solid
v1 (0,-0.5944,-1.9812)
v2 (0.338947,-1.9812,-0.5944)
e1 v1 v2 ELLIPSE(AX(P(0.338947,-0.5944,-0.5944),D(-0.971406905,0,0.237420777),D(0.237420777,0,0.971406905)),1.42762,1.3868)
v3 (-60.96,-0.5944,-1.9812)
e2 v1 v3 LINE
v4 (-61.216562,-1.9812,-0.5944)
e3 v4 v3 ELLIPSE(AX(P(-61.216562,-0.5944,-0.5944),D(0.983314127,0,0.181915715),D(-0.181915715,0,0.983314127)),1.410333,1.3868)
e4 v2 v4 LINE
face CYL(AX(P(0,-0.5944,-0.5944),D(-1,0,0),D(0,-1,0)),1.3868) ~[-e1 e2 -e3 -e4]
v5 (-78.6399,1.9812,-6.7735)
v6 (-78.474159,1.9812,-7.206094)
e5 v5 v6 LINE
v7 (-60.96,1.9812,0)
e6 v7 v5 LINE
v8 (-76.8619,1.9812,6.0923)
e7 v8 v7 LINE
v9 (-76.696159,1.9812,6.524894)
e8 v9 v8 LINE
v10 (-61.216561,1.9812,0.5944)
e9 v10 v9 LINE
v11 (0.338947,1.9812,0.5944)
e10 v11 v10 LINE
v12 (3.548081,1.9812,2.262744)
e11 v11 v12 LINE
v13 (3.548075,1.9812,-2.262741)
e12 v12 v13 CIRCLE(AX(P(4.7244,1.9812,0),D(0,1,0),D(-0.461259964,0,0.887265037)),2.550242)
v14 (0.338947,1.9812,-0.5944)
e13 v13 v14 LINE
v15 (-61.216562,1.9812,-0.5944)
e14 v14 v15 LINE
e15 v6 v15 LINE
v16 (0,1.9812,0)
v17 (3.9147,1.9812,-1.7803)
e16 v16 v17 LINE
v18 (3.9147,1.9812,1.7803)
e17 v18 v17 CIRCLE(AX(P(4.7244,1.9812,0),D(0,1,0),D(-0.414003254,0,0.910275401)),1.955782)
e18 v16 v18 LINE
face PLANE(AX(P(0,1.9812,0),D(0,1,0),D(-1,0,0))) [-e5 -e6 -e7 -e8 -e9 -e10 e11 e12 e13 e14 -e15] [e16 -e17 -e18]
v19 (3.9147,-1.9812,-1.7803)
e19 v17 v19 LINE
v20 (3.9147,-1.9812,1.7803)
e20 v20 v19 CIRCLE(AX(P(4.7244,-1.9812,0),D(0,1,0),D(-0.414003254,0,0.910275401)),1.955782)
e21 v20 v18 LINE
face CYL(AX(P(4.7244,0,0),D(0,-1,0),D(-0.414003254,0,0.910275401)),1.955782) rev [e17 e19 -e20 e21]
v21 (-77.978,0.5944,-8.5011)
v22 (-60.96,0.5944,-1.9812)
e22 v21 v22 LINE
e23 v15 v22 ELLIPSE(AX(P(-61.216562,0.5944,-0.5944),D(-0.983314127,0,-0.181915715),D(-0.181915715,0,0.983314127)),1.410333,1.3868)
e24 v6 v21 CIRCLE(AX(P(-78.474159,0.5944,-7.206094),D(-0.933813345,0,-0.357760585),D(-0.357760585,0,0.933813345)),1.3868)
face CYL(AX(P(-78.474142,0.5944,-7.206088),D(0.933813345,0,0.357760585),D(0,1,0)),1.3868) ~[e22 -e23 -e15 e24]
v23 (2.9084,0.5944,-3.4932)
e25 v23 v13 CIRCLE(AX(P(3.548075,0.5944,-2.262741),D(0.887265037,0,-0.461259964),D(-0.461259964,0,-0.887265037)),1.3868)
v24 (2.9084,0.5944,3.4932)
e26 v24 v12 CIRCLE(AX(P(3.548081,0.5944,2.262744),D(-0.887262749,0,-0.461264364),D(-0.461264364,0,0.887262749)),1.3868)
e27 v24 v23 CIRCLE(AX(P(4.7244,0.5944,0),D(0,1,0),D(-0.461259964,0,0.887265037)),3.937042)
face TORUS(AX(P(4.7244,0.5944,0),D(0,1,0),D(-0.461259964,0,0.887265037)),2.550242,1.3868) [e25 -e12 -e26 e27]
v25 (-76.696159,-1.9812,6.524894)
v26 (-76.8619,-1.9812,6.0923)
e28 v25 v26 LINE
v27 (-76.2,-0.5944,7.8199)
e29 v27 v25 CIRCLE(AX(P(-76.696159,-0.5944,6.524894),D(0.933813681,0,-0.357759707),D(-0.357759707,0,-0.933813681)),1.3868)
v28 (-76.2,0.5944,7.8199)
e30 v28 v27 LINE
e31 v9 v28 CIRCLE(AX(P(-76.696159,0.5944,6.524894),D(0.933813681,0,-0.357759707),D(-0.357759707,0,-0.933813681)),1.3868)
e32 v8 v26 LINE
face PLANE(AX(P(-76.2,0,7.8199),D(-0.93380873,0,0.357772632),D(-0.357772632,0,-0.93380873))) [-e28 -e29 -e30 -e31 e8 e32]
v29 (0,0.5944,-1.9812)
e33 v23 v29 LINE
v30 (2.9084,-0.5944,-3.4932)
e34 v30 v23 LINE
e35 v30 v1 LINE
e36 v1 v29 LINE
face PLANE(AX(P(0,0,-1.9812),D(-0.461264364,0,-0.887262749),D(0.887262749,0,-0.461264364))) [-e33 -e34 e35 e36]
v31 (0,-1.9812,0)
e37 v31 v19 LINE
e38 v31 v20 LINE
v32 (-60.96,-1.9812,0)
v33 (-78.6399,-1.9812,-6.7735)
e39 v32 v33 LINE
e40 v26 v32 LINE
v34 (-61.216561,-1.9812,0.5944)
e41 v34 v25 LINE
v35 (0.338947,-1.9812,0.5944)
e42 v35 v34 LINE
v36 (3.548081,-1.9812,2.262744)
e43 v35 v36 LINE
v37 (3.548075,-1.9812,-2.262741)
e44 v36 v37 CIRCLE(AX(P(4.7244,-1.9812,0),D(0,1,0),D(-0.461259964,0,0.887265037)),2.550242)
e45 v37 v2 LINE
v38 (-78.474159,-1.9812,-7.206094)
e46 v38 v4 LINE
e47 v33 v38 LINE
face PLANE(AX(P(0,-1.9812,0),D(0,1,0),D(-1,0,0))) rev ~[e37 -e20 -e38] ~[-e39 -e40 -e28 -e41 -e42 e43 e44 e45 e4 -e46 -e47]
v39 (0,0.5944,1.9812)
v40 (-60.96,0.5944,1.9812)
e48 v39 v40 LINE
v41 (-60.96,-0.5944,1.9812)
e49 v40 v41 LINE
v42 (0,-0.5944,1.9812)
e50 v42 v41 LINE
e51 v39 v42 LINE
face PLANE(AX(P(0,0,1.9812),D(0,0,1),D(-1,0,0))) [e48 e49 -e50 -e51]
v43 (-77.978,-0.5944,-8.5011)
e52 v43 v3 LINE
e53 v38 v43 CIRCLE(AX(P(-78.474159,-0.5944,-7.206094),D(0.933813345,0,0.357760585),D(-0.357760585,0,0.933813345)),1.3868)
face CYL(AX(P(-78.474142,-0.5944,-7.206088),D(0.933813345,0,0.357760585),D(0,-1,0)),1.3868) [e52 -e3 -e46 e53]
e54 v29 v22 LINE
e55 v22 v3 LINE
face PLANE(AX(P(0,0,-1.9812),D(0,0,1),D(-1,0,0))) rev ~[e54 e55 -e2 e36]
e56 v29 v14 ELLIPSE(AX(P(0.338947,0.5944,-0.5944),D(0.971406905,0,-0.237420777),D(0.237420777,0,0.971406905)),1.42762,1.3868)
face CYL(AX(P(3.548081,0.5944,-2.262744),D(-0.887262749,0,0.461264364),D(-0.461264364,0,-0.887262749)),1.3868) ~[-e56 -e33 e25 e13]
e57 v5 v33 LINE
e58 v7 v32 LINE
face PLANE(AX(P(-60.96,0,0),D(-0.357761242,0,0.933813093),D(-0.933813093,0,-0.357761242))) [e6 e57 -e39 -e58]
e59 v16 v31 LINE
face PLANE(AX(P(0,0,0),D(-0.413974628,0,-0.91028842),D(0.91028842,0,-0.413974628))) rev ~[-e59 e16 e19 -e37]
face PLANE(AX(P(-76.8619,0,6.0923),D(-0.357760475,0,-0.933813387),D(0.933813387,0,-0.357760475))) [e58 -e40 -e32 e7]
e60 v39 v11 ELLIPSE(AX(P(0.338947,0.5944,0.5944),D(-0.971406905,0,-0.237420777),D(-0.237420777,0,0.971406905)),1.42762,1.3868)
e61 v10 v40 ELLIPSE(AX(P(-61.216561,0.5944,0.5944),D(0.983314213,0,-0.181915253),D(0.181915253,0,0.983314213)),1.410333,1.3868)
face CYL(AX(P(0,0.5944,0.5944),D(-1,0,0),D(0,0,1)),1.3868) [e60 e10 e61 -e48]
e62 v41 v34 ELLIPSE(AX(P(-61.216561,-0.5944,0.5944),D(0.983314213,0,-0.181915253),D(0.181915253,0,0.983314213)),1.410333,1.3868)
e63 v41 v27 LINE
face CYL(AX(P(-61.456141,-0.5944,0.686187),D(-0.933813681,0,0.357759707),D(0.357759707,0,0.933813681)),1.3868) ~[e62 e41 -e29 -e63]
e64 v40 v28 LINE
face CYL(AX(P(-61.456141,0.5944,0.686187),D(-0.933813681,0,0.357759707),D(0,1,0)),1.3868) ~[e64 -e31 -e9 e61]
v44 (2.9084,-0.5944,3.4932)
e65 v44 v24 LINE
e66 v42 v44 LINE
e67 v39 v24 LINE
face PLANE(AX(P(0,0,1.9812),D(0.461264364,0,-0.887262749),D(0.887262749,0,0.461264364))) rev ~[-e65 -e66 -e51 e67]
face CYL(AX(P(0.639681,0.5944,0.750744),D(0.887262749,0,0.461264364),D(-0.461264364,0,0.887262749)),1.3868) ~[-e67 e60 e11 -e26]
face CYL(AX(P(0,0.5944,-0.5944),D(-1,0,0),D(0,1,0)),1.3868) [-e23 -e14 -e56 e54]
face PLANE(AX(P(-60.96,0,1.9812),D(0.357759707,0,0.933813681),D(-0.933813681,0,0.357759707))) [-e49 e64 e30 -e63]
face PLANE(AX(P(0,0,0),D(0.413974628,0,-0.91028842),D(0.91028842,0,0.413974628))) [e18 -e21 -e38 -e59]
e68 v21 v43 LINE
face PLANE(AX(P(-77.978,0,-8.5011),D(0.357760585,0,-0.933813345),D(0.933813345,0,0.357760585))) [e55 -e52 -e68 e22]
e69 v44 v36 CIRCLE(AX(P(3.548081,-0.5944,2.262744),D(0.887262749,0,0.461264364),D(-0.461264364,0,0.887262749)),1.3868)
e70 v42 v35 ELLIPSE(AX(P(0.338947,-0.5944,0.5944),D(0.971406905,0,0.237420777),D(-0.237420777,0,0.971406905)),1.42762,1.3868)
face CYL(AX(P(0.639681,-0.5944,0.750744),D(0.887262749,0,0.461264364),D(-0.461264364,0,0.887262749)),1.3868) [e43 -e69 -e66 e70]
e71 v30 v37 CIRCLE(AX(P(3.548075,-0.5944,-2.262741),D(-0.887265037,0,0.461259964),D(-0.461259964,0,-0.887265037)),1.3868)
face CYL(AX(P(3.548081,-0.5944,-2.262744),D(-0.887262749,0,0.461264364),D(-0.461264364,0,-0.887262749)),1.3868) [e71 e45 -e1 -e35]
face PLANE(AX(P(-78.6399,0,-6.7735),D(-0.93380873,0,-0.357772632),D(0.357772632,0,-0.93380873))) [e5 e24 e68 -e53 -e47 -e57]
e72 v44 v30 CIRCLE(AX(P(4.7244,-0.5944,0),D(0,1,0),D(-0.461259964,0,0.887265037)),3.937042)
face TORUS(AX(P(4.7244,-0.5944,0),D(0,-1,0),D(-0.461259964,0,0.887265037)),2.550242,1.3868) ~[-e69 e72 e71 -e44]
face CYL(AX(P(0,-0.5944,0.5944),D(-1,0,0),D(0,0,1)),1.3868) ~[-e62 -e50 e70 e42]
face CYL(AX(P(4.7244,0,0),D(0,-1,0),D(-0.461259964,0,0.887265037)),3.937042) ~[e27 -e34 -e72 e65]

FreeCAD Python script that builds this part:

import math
import FreeCAD as App
import Part
import Sketcher
from FreeCAD import Vector
Q = App.Units.Quantity


def edges_at(feature, points):
    """Names of the edges that pass closest to the given points."""
    edges = feature.Shape.Edges
    near = lambda p: min(range(len(edges)), key=lambda i: edges[i].distToShape(Part.Vertex(*p))[0])
    return sorted({f"Edge{near(p) + 1}" for p in points})

doc = App.newDocument("Part")
params = doc.addObject("Spreadsheet::Sheet", "Params")
for row, (alias, value) in enumerate([
    ("sketch1_width", "2.4 in"),
    ("sketch1_radius", "0.155 in"),
    ("sketch1_radius2", "0.077 in"),
    ("pad1_length", "0.156 in"),
    ("fillet_radius", "0.0545984 in"),
], start=1):
    params.set(f"A{row}", alias)
    params.set(f"B{row}", "=" + value)
    params.setAlias(f"B{row}", alias)

body = doc.addObject("PartDesign::Body", "Body")

# Sketch on XZ plane
sketch1 = body.newObject("Sketcher::SketchObject", "Sketch")
sketch1.AttachmentSupport = (doc.getObject("XZ_Plane"), [""])
sketch1.MapMode = "FlatFace"
sketch1.addGeometry([
    Part.LineSegment(Vector(0, 2, 0), Vector(2.9, 3.5, 0)),  # 0
    Part.ArcOfCircle(Part.Circle(Vector(4.7, 0, 0), Vector(0, 0, 1), 3.9), math.radians(-117), math.radians(117)),  # 1
    Part.LineSegment(Vector(2.9, -3.5, 0), Vector(0, -2, 0)),  # 2
    Part.LineSegment(Vector(0, -2, 0), Vector(-61, -2, 0)),  # 3
    Part.LineSegment(Vector(-61, -2, 0), Vector(-78, -8.5, 0)),  # 4
    Part.LineSegment(Vector(-78, -8.5, 0), Vector(-78.6, -6.8, 0)),  # 5
    Part.LineSegment(Vector(-78.6, -6.8, 0), Vector(-61, 0, 0)),  # 6
    Part.LineSegment(Vector(-61, 0, 0), Vector(-76.9, 6.1, 0)),  # 7
    Part.LineSegment(Vector(-76.9, 6.1, 0), Vector(-76.2, 7.8, 0)),  # 8
    Part.LineSegment(Vector(-76.2, 7.8, 0), Vector(-61, 2, 0)),  # 9
    Part.LineSegment(Vector(-61, 2, 0), Vector(0, 2, 0)),  # 10
    Part.ArcOfCircle(Part.Circle(Vector(4.7, 0, 0), Vector(0, 0, 1), 2), math.radians(-114), math.radians(114)),  # 11
    Part.LineSegment(Vector(3.9, 1.8, 0), Vector(0, 0, 0)),  # 12
    Part.LineSegment(Vector(0, 0, 0), Vector(3.9, -1.8, 0)),  # 13
], False)
sketch1.addConstraint([
    Sketcher.Constraint("Tangent", 0, 2, 1, 2),
    Sketcher.Constraint("Tangent", 1, 1, 2, 1),
    Sketcher.Constraint("Coincident", 2, 2, 3, 1),
    Sketcher.Constraint("Coincident", 3, 2, 4, 1),
    Sketcher.Constraint("Coincident", 4, 2, 5, 1),
    Sketcher.Constraint("Coincident", 5, 2, 6, 1),
    Sketcher.Constraint("Coincident", 6, 2, 7, 1),
    Sketcher.Constraint("Coincident", 7, 2, 8, 1),
    Sketcher.Constraint("Coincident", 8, 2, 9, 1),
    Sketcher.Constraint("Coincident", 9, 2, 10, 1),
    Sketcher.Constraint("Coincident", 10, 2, 0, 1),
    Sketcher.Constraint("Tangent", 11, 2, 12, 1),
    Sketcher.Constraint("Coincident", 12, 2, 13, 1),
    Sketcher.Constraint("Tangent", 13, 2, 11, 1),
    Sketcher.Constraint("Horizontal", 3),
    Sketcher.Constraint("Horizontal", 10),
    Sketcher.Constraint("Coincident", 12, 2, -1, 1),
    Sketcher.Constraint("Coincident", 11, 3, 1, 3),
    Sketcher.Constraint("Symmetric", 2, 2, 10, 2, -1, 1),
    Sketcher.Constraint("Symmetric", 0, 2, 1, 1, -1),
    Sketcher.Constraint("PointOnObject", 6, 2, -1),
    Sketcher.Constraint("Perpendicular", 4, 5),
    Sketcher.Constraint("Perpendicular", 5, 6),
    Sketcher.Constraint("Perpendicular", 7, 8),
    Sketcher.Constraint("Perpendicular", 8, 9),
    Sketcher.Constraint("Vertical", 3, 2, 6, 2),
    Sketcher.Constraint("Vertical", 6, 2, 9, 2),
    Sketcher.Constraint("Equal", 5, 8),
    Sketcher.Constraint("DistanceX", 3, 2, 3, 1, Q("2.4 in")),
    Sketcher.Constraint("DistanceX", 8, 2, -1, 1, Q("3 in")),
    Sketcher.Constraint("Radius", 1, Q("0.155 in")),
    Sketcher.Constraint("Radius", 11, Q("0.077 in")),
    Sketcher.Constraint("DistanceX", 5, 2, 7, 2, Q("0.07 in")),
    Sketcher.Constraint("DistanceX", -1, 1, 1, 3, Q("0.186 in")),
    Sketcher.Constraint("DistanceY", 2, 2, -1, 1, Q("0.078 in")),
    Sketcher.Constraint("Distance", 4, Q("0.7175 in")),
])
sketch1.setExpression("Constraints[28]", "Params.sketch1_width")
sketch1.setExpression("Constraints[30]", "Params.sketch1_radius")
sketch1.setExpression("Constraints[31]", "Params.sketch1_radius2")
pad1 = body.newObject("PartDesign::Pad", "Pad")
pad1.Profile = sketch1
pad1.setExpression("Length", "Params.pad1_length")
pad1.Midplane = True
doc.recompute()

fillet = body.newObject("PartDesign::Fillet", "Fillet")
fillet.Base = (pad1, edges_at(pad1, [
    (-68.58, -1.981, 4.901),
    (-68.58, 1.981, 4.901),
    (-30.48, -1.981, 1.981),
    (-30.48, 1.981, 1.981),
    (8.661, -1.981, 0),
    (1.454, -1.981, -2.737),
    (1.454, -1.981, 2.737),
    (8.661, 1.981, 0),
    (1.454, 1.981, 2.737),
    (1.454, 1.981, -2.737),
    (-30.48, -1.981, -1.981),
    (-69.469, -1.981, -5.241),
    (-30.48, 1.981, -1.981),
    (-69.469, 1.981, -5.241),
]))
fillet.setExpression("Radius", "Params.fillet_radius")

doc.recompute()
